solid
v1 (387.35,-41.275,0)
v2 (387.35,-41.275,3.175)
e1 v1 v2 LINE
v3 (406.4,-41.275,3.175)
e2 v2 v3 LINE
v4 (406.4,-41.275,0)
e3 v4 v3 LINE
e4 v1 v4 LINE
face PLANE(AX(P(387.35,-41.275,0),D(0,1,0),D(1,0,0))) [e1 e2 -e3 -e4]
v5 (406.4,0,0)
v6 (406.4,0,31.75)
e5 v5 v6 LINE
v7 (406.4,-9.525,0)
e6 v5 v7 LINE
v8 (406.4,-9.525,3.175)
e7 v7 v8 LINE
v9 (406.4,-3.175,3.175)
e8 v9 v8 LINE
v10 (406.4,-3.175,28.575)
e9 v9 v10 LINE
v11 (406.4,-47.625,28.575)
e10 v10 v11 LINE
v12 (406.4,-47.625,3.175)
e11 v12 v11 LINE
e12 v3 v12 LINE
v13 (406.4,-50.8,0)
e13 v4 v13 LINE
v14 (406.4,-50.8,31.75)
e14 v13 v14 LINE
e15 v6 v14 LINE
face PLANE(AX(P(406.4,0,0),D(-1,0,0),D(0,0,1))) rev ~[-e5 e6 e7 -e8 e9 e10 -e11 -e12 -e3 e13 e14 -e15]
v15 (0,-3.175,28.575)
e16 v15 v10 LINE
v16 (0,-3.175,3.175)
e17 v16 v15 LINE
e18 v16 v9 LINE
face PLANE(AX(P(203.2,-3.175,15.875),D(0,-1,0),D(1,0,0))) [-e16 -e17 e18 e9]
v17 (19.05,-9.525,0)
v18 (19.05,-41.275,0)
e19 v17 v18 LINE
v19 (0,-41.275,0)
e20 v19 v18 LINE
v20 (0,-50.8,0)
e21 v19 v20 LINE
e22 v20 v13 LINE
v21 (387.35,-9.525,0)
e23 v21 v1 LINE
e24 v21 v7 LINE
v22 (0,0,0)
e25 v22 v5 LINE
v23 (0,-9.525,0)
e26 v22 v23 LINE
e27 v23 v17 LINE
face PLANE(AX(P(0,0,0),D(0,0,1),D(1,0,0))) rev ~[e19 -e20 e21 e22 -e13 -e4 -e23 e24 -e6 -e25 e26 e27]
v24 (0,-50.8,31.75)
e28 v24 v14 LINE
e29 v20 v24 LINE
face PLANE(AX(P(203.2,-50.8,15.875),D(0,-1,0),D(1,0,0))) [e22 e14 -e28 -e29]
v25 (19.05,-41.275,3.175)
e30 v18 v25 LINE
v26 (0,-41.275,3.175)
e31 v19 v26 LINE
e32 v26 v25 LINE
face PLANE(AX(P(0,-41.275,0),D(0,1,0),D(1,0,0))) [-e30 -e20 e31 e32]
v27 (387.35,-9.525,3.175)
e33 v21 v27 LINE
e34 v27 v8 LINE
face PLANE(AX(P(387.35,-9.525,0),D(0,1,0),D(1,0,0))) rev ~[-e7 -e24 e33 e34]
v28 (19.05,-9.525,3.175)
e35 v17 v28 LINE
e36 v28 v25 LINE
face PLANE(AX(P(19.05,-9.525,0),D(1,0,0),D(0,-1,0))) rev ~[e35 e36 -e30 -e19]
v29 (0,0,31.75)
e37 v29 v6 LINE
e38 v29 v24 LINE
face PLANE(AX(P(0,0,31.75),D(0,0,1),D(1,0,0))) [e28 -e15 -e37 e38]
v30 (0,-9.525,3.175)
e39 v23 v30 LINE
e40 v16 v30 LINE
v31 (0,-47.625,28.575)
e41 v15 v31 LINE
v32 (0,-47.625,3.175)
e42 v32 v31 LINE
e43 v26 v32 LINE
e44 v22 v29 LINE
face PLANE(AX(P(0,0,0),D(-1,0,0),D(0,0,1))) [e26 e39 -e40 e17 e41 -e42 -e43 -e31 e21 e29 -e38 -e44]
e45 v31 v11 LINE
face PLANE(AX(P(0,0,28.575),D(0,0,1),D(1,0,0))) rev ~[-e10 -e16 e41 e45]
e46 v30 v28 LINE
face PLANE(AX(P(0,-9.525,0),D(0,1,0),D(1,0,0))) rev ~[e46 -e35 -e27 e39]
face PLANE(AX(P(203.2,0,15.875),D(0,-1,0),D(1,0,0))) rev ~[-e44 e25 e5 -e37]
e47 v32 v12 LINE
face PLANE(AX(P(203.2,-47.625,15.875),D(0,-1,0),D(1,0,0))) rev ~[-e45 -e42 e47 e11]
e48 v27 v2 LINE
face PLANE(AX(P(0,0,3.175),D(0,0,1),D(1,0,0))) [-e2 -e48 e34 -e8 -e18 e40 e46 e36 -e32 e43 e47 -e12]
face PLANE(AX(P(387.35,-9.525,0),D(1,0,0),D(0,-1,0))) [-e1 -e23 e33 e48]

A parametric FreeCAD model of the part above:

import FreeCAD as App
import Part
import Sketcher

V = App.Vector
Q = App.Units.Quantity


def faces_at(feature, points):
    """Names of the faces that lie closest to the given points."""
    faces = feature.Shape.Faces
    near = lambda p: min(range(len(faces)), key=lambda i: faces[i].distToShape(Part.Vertex(*p))[0])
    return sorted({f"Face{near(p) + 1}" for p in points})

doc = App.newDocument("Part")
body = doc.addObject("PartDesign::Body", "Body")

# Sketch on XZ plane
sketch1 = doc.addObject("Sketcher::SketchObject", "Sketch")
body.addObject(sketch1)
sketch1.AttachmentSupport = (doc.XZ_Plane, [""])
sketch1.MapMode = "FlatFace"
sketch1.addGeometry([
    Part.LineSegment(V(0, 32, 0), V(0, 0, 0)),
    Part.LineSegment(V(0, 0, 0), V(406, 0, 0)),
    Part.LineSegment(V(406, 0, 0), V(406, 32, 0)),
    Part.LineSegment(V(406, 32, 0), V(0, 32, 0)),
], False)
sketch1.addConstraint([
    Sketcher.Constraint("Coincident", 0, 2, 1, 1),
    Sketcher.Constraint("Coincident", 1, 2, 2, 1),
    Sketcher.Constraint("Coincident", 2, 2, 3, 1),
    Sketcher.Constraint("Coincident", 3, 2, 0, 1),
    Sketcher.Constraint("Vertical", 0),
    Sketcher.Constraint("Horizontal", 1),
    Sketcher.Constraint("Vertical", 2),
    Sketcher.Constraint("Horizontal", 3),
    Sketcher.Constraint("Coincident", 0, 2, -1, 1),
    Sketcher.Constraint("DistanceX", 1, 1, 1, 2, Q("16 in")),
    Sketcher.Constraint("DistanceY", 0, 2, 0, 1, Q("1.25 in")),
])
pad1 = doc.addObject("PartDesign::Pad", "Pad")
body.addObject(pad1)
pad1.Profile = sketch1
pad1.Length = Q("2 in")
doc.recompute()

thickness = doc.addObject("PartDesign::Thickness", "Thickness")
body.addObject(thickness)
thickness.Base = (pad1, faces_at(pad1, [(0, -25.4, 15.875), (406.4, -25.4, 15.875)]))
thickness.Value = Q("0.125 in")
thickness.Reversed = True
thickness.Join = "Arc"

# Sketch on XY plane
sketch2 = doc.addObject("Sketcher::SketchObject", "Sketch001")
body.addObject(sketch2)
sketch2.AttachmentSupport = (doc.XY_Plane, [""])
sketch2.MapMode = "FlatFace"
sketch2.addGeometry([
    Part.LineSegment(V(0, -41, 0), V(0, -10, 0)),  # 0
    Part.LineSegment(V(0, -10, 0), V(19, -10, 0)),  # 1
    Part.LineSegment(V(19, -10, 0), V(19, -41, 0)),  # 2
    Part.LineSegment(V(19, -41, 0), V(0, -41, 0)),  # 3
    Part.LineSegment(V(387, -41, 0), V(387, -10, 0)),  # 4
    Part.LineSegment(V(387, -10, 0), V(406, -10, 0)),  # 5
    Part.LineSegment(V(406, -10, 0), V(406, -41, 0)),  # 6
    Part.LineSegment(V(406, -41, 0), V(387, -41, 0)),  # 7
], False)
sketch2.addConstraint([
    Sketcher.Constraint("Coincident", 0, 2, 1, 1),
    Sketcher.Constraint("Coincident", 1, 2, 2, 1),
    Sketcher.Constraint("Coincident", 2, 2, 3, 1),
    Sketcher.Constraint("Coincident", 3, 2, 0, 1),
    Sketcher.Constraint("Coincident", 4, 2, 5, 1),
    Sketcher.Constraint("Coincident", 5, 2, 6, 1),
    Sketcher.Constraint("Coincident", 6, 2, 7, 1),
    Sketcher.Constraint("Coincident", 7, 2, 4, 1),
    Sketcher.Constraint("Vertical", 0),
    Sketcher.Constraint("Horizontal", 1),
    Sketcher.Constraint("Vertical", 2),
    Sketcher.Constraint("Horizontal", 3),
    Sketcher.Constraint("Vertical", 4),
    Sketcher.Constraint("Horizontal", 5),
    Sketcher.Constraint("Vertical", 6),
    Sketcher.Constraint("Horizontal", 7),
    Sketcher.Constraint("PointOnObject", 0, 2, -2),
    Sketcher.Constraint("Horizontal", 1, 2, 4, 2),
    Sketcher.Constraint("Horizontal", 3, 2, 6, 2),
    Sketcher.Constraint("Equal", 3, 5),
    Sketcher.Constraint("DistanceX", -1, 1, 5, 2, Q("16 in")),
    Sketcher.Constraint("DistanceX", 1, 1, 1, 2, Q("0.75 in")),
    Sketcher.Constraint("DistanceY", 0, 1, 0, 2, Q("1.25 in")),
    Sketcher.Constraint("DistanceY", 0, 2, -1, 1, Q("0.375 in")),
])
pocket1 = doc.addObject("PartDesign::Pocket", "Pocket")
body.addObject(pocket1)
pocket1.Profile = sketch2
pocket1.Length = Q("0.125 in")
pocket1.Reversed = True

doc.recompute()
